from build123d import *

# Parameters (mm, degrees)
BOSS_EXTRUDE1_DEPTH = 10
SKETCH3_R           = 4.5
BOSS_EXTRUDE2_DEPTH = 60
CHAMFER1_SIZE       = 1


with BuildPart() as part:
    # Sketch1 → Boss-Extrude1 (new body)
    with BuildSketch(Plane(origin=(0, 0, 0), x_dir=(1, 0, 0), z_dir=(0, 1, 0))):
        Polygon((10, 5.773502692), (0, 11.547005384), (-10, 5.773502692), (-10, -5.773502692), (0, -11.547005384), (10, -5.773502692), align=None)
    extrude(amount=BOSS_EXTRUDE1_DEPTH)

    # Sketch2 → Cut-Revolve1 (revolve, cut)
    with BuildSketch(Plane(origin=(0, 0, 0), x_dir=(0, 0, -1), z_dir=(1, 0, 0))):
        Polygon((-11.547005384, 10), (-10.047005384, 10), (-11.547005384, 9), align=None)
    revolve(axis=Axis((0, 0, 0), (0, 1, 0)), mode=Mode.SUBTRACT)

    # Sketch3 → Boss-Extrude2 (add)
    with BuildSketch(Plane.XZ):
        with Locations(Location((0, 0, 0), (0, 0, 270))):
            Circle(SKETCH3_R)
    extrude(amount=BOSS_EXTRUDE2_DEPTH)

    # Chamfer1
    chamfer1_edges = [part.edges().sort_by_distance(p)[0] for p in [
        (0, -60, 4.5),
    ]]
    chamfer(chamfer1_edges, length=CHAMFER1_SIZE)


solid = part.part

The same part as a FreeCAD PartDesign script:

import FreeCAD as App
import Part
import Sketcher

V = App.Vector
Q = App.Units.Quantity


def edges_at(feature, points):
    """Names of the edges that pass closest to the given points."""
    edges = feature.Shape.Edges
    near = lambda p: min(range(len(edges)), key=lambda i: edges[i].distToShape(Part.Vertex(*p))[0])
    return sorted({f"Edge{near(p) + 1}" for p in points})

doc = App.newDocument("Part")
body = doc.addObject("PartDesign::Body", "Body")

sketch1 = doc.addObject("Sketcher::SketchObject", "Sketch")
body.addObject(sketch1)
sketch1.AttachmentSupport = (doc.XZ_Plane, [""])
sketch1.MapMode = "FlatFace"
sketch1.addGeometry([
    Part.LineSegment(V(10, -6, 0), V(0, -12, 0)),
    Part.LineSegment(V(0, -12, 0), V(-10, -6, 0)),
    Part.LineSegment(V(-10, -6, 0), V(-10, 6, 0)),
    Part.LineSegment(V(-10, 6, 0), V(0, 12, 0)),
    Part.LineSegment(V(0, 12, 0), V(10, 6, 0)),
    Part.LineSegment(V(10, 6, 0), V(10, -6, 0)),
], False)
sketch1.addConstraint([
    Sketcher.Constraint("Coincident", 0, 2, 1, 1),
    Sketcher.Constraint("Coincident", 1, 2, 2, 1),
    Sketcher.Constraint("Coincident", 2, 2, 3, 1),
    Sketcher.Constraint("Coincident", 3, 2, 4, 1),
    Sketcher.Constraint("Coincident", 4, 2, 5, 1),
    Sketcher.Constraint("Coincident", 5, 2, 0, 1),
    Sketcher.Constraint("Vertical", 2),
    Sketcher.Constraint("Vertical", 5),
    Sketcher.Constraint("Symmetric", 0, 2, 3, 2, -1, 1),
    Sketcher.Constraint("Symmetric", 1, 2, 4, 2, -1, 1),
    Sketcher.Constraint("PointOnObject", 0, 2, -2),
    Sketcher.Constraint("Parallel", 0, 3),
    Sketcher.Constraint("Horizontal", 2, 2, 4, 2),
    Sketcher.Constraint("Angle", 0, Q("-150 deg")),
    Sketcher.Constraint("DistanceX", 1, 2, -1, 1, 10.0),
    Sketcher.Constraint("DistanceY", 2, 1, 2, 2, 11.547005),
])
pad1 = doc.addObject("PartDesign::Pad", "Pad")
body.addObject(pad1)
pad1.Profile = sketch1
pad1.Length = 10
pad1.Reversed = True

sketch2 = doc.addObject("Sketcher::SketchObject", "Sketch001")
body.addObject(sketch2)
sketch2.AttachmentSupport = (doc.YZ_Plane, [""])
sketch2.MapMode = "FlatFace"
sketch2.addGeometry([
    Part.LineSegment(V(10, 10, 0), V(10, 11.5, 0)),
    Part.LineSegment(V(10, 11.5, 0), V(9, 11.5, 0)),
    Part.LineSegment(V(9, 11.5, 0), V(10, 10, 0)),
], False)
sketch2.addConstraint([
    Sketcher.Constraint("Coincident", 0, 2, 1, 1),
    Sketcher.Constraint("Coincident", 1, 2, 2, 1),
    Sketcher.Constraint("Coincident", 2, 2, 0, 1),
    Sketcher.Constraint("Vertical", 0),
    Sketcher.Constraint("Horizontal", 1),
    Sketcher.Constraint("DistanceX", 1, 2, 1, 1, 1.0),
    Sketcher.Constraint("DistanceY", 0, 1, 0, 2, 1.5),
    Sketcher.Constraint("DistanceX", -1, 1, 0, 2, 10.0),
    Sketcher.Constraint("DistanceY", -1, 1, 0, 2, 11.547005),
])
groove = doc.addObject("PartDesign::Groove", "Groove")
body.addObject(groove)
groove.Profile = sketch2
groove.ReferenceAxis = (sketch2, ["H_Axis"])
groove.Angle = 360

sketch3 = doc.addObject("Sketcher::SketchObject", "Sketch002")
body.addObject(sketch3)
sketch3.AttachmentSupport = (doc.XZ_Plane, [""])
sketch3.MapMode = "FlatFace"
sketch3.addGeometry(Part.Circle(V(0, 0, 0), V(0, 0, 1), 4.5), False)
sketch3.addConstraint([
    Sketcher.Constraint("Coincident", 0, 3, -1, 1),
    Sketcher.Constraint("Diameter", 0, 9.0),
])
pad2 = doc.addObject("PartDesign::Pad", "Pad001")
body.addObject(pad2)
pad2.Profile = sketch3
pad2.Length = 60
doc.recompute()

chamfer = doc.addObject("PartDesign::Chamfer", "Chamfer")
body.addObject(chamfer)
chamfer.Base = (pad2, edges_at(pad2, [(0, -60, 4.5)]))
chamfer.Size = 1

doc.recompute()
